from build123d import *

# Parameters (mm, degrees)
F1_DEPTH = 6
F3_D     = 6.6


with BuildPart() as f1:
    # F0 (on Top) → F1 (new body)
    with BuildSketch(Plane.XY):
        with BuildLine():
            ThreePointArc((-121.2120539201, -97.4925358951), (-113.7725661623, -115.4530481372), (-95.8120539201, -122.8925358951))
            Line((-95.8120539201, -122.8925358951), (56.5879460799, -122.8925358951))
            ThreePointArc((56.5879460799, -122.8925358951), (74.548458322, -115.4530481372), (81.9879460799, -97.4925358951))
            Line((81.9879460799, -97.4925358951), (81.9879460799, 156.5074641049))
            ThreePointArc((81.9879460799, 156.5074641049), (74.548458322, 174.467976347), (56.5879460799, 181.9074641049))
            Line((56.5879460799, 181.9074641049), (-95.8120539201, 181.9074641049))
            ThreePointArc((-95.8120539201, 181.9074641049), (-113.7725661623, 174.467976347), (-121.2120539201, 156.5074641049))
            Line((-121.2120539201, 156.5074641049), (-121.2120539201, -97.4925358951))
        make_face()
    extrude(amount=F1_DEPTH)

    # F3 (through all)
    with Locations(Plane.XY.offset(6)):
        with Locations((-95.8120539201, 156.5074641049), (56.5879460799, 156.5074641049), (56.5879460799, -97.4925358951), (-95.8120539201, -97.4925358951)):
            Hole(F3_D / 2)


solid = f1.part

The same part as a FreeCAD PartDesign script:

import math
import FreeCAD as App
import Part
import Sketcher
from FreeCAD import Vector
Q = App.Units.Quantity

doc = App.newDocument("Part")
body = doc.addObject("PartDesign::Body", "Body")

# Sketch on XY plane
sketch1 = body.newObject("Sketcher::SketchObject", "Sketch")
sketch1.AttachmentSupport = (doc.getObject("XY_Plane"), [""])
sketch1.MapMode = "FlatFace"
sketch1.addGeometry([
    Part.ArcOfCircle(Part.Circle(Vector(-96, -97, 0), Vector(0, 0, 1), 25), math.radians(180), math.radians(270)),  # 0
    Part.LineSegment(Vector(-96, -123, 0), Vector(57, -123, 0)),  # 1
    Part.ArcOfCircle(Part.Circle(Vector(57, -97, 0), Vector(0, 0, 1), 25), math.radians(-90), math.radians(0)),  # 2
    Part.LineSegment(Vector(82, -97, 0), Vector(82, 157, 0)),  # 3
    Part.ArcOfCircle(Part.Circle(Vector(57, 157, 0), Vector(0, 0, 1), 25), math.radians(0), math.radians(90)),  # 4
    Part.LineSegment(Vector(57, 182, 0), Vector(-96, 182, 0)),  # 5
    Part.ArcOfCircle(Part.Circle(Vector(-96, 157, 0), Vector(0, 0, 1), 25), math.radians(90), math.radians(180)),  # 6
    Part.LineSegment(Vector(-121, 157, 0), Vector(-121, -97, 0)),  # 7
], False)
sketch1.addConstraint([
    Sketcher.Constraint("Tangent", 0, 2, 1, 1),
    Sketcher.Constraint("Tangent", 1, 2, 2, 1),
    Sketcher.Constraint("Tangent", 2, 2, 3, 1),
    Sketcher.Constraint("Tangent", 3, 2, 4, 1),
    Sketcher.Constraint("Tangent", 4, 2, 5, 1),
    Sketcher.Constraint("Tangent", 5, 2, 6, 1),
    Sketcher.Constraint("Tangent", 6, 2, 7, 1),
    Sketcher.Constraint("Tangent", 7, 2, 0, 1),
    Sketcher.Constraint("Horizontal", 1),
    Sketcher.Constraint("Vertical", 3),
    Sketcher.Constraint("Horizontal", 5),
    Sketcher.Constraint("Vertical", 7),
    Sketcher.Constraint("Equal", 0, 2),
    Sketcher.Constraint("Equal", 2, 4),
    Sketcher.Constraint("Equal", 4, 6),
    Sketcher.Constraint("Radius", 0, Q("1 in")),
    Sketcher.Constraint("DistanceX", 1, 1, 1, 2, Q("6 in")),
    Sketcher.Constraint("DistanceY", 3, 1, 3, 2, Q("10 in")),
    Sketcher.Constraint("DistanceX", 0, 3, -1, 1, Q("95.812054 mm")),
    Sketcher.Constraint("DistanceY", 0, 3, -1, 1, Q("97.492536 mm")),
])
pad1 = body.newObject("PartDesign::Pad", "Pad")
pad1.Profile = sketch1
pad1.Length = 6

# Sketch on XY plane
sketch2 = body.newObject("Sketcher::SketchObject", "Sketch001")
sketch2.AttachmentSupport = (doc.getObject("XY_Plane"), [""])
sketch2.MapMode = "FlatFace"
sketch2.AttachmentOffset = App.Placement(Vector(0, 0, 6), App.Rotation())
sketch2.addGeometry([
    Part.Circle(Vector(-95.8, 156.5, 0), Vector(0, 0, 1), 3.3),
    Part.Circle(Vector(56.6, 156.5, 0), Vector(0, 0, 1), 3.3),
    Part.Circle(Vector(56.6, -97.5, 0), Vector(0, 0, 1), 3.3),
    Part.Circle(Vector(-95.8, -97.5, 0), Vector(0, 0, 1), 3.3),
], False)
sketch2.addConstraint([
    Sketcher.Constraint("Equal", 0, 1),
    Sketcher.Constraint("Equal", 1, 2),
    Sketcher.Constraint("Equal", 2, 3),
    Sketcher.Constraint("Horizontal", 0, 3, 1, 3),
    Sketcher.Constraint("Horizontal", 2, 3, 3, 3),
    Sketcher.Constraint("Vertical", 1, 3, 2, 3),
    Sketcher.Constraint("Vertical", 0, 3, 3, 3),
    Sketcher.Constraint("DistanceX", 0, 3, 1, 3, Q("6 in")),
    Sketcher.Constraint("DistanceY", 2, 3, 1, 3, Q("10 in")),
    Sketcher.Constraint("Diameter", 0, Q("6.6 mm")),
    Sketcher.Constraint("DistanceX", 0, 3, -1, 1, Q("95.812054 mm")),
    Sketcher.Constraint("DistanceY", -1, 1, 0, 3, Q("156.507464 mm")),
])
doc.recompute()
hole = body.newObject("PartDesign::Hole", "Hole")
hole.Profile = sketch2
hole.ThreadType = "None"
hole.Diameter = 6.6
hole.DepthType = "ThroughAll"

doc.recompute()
